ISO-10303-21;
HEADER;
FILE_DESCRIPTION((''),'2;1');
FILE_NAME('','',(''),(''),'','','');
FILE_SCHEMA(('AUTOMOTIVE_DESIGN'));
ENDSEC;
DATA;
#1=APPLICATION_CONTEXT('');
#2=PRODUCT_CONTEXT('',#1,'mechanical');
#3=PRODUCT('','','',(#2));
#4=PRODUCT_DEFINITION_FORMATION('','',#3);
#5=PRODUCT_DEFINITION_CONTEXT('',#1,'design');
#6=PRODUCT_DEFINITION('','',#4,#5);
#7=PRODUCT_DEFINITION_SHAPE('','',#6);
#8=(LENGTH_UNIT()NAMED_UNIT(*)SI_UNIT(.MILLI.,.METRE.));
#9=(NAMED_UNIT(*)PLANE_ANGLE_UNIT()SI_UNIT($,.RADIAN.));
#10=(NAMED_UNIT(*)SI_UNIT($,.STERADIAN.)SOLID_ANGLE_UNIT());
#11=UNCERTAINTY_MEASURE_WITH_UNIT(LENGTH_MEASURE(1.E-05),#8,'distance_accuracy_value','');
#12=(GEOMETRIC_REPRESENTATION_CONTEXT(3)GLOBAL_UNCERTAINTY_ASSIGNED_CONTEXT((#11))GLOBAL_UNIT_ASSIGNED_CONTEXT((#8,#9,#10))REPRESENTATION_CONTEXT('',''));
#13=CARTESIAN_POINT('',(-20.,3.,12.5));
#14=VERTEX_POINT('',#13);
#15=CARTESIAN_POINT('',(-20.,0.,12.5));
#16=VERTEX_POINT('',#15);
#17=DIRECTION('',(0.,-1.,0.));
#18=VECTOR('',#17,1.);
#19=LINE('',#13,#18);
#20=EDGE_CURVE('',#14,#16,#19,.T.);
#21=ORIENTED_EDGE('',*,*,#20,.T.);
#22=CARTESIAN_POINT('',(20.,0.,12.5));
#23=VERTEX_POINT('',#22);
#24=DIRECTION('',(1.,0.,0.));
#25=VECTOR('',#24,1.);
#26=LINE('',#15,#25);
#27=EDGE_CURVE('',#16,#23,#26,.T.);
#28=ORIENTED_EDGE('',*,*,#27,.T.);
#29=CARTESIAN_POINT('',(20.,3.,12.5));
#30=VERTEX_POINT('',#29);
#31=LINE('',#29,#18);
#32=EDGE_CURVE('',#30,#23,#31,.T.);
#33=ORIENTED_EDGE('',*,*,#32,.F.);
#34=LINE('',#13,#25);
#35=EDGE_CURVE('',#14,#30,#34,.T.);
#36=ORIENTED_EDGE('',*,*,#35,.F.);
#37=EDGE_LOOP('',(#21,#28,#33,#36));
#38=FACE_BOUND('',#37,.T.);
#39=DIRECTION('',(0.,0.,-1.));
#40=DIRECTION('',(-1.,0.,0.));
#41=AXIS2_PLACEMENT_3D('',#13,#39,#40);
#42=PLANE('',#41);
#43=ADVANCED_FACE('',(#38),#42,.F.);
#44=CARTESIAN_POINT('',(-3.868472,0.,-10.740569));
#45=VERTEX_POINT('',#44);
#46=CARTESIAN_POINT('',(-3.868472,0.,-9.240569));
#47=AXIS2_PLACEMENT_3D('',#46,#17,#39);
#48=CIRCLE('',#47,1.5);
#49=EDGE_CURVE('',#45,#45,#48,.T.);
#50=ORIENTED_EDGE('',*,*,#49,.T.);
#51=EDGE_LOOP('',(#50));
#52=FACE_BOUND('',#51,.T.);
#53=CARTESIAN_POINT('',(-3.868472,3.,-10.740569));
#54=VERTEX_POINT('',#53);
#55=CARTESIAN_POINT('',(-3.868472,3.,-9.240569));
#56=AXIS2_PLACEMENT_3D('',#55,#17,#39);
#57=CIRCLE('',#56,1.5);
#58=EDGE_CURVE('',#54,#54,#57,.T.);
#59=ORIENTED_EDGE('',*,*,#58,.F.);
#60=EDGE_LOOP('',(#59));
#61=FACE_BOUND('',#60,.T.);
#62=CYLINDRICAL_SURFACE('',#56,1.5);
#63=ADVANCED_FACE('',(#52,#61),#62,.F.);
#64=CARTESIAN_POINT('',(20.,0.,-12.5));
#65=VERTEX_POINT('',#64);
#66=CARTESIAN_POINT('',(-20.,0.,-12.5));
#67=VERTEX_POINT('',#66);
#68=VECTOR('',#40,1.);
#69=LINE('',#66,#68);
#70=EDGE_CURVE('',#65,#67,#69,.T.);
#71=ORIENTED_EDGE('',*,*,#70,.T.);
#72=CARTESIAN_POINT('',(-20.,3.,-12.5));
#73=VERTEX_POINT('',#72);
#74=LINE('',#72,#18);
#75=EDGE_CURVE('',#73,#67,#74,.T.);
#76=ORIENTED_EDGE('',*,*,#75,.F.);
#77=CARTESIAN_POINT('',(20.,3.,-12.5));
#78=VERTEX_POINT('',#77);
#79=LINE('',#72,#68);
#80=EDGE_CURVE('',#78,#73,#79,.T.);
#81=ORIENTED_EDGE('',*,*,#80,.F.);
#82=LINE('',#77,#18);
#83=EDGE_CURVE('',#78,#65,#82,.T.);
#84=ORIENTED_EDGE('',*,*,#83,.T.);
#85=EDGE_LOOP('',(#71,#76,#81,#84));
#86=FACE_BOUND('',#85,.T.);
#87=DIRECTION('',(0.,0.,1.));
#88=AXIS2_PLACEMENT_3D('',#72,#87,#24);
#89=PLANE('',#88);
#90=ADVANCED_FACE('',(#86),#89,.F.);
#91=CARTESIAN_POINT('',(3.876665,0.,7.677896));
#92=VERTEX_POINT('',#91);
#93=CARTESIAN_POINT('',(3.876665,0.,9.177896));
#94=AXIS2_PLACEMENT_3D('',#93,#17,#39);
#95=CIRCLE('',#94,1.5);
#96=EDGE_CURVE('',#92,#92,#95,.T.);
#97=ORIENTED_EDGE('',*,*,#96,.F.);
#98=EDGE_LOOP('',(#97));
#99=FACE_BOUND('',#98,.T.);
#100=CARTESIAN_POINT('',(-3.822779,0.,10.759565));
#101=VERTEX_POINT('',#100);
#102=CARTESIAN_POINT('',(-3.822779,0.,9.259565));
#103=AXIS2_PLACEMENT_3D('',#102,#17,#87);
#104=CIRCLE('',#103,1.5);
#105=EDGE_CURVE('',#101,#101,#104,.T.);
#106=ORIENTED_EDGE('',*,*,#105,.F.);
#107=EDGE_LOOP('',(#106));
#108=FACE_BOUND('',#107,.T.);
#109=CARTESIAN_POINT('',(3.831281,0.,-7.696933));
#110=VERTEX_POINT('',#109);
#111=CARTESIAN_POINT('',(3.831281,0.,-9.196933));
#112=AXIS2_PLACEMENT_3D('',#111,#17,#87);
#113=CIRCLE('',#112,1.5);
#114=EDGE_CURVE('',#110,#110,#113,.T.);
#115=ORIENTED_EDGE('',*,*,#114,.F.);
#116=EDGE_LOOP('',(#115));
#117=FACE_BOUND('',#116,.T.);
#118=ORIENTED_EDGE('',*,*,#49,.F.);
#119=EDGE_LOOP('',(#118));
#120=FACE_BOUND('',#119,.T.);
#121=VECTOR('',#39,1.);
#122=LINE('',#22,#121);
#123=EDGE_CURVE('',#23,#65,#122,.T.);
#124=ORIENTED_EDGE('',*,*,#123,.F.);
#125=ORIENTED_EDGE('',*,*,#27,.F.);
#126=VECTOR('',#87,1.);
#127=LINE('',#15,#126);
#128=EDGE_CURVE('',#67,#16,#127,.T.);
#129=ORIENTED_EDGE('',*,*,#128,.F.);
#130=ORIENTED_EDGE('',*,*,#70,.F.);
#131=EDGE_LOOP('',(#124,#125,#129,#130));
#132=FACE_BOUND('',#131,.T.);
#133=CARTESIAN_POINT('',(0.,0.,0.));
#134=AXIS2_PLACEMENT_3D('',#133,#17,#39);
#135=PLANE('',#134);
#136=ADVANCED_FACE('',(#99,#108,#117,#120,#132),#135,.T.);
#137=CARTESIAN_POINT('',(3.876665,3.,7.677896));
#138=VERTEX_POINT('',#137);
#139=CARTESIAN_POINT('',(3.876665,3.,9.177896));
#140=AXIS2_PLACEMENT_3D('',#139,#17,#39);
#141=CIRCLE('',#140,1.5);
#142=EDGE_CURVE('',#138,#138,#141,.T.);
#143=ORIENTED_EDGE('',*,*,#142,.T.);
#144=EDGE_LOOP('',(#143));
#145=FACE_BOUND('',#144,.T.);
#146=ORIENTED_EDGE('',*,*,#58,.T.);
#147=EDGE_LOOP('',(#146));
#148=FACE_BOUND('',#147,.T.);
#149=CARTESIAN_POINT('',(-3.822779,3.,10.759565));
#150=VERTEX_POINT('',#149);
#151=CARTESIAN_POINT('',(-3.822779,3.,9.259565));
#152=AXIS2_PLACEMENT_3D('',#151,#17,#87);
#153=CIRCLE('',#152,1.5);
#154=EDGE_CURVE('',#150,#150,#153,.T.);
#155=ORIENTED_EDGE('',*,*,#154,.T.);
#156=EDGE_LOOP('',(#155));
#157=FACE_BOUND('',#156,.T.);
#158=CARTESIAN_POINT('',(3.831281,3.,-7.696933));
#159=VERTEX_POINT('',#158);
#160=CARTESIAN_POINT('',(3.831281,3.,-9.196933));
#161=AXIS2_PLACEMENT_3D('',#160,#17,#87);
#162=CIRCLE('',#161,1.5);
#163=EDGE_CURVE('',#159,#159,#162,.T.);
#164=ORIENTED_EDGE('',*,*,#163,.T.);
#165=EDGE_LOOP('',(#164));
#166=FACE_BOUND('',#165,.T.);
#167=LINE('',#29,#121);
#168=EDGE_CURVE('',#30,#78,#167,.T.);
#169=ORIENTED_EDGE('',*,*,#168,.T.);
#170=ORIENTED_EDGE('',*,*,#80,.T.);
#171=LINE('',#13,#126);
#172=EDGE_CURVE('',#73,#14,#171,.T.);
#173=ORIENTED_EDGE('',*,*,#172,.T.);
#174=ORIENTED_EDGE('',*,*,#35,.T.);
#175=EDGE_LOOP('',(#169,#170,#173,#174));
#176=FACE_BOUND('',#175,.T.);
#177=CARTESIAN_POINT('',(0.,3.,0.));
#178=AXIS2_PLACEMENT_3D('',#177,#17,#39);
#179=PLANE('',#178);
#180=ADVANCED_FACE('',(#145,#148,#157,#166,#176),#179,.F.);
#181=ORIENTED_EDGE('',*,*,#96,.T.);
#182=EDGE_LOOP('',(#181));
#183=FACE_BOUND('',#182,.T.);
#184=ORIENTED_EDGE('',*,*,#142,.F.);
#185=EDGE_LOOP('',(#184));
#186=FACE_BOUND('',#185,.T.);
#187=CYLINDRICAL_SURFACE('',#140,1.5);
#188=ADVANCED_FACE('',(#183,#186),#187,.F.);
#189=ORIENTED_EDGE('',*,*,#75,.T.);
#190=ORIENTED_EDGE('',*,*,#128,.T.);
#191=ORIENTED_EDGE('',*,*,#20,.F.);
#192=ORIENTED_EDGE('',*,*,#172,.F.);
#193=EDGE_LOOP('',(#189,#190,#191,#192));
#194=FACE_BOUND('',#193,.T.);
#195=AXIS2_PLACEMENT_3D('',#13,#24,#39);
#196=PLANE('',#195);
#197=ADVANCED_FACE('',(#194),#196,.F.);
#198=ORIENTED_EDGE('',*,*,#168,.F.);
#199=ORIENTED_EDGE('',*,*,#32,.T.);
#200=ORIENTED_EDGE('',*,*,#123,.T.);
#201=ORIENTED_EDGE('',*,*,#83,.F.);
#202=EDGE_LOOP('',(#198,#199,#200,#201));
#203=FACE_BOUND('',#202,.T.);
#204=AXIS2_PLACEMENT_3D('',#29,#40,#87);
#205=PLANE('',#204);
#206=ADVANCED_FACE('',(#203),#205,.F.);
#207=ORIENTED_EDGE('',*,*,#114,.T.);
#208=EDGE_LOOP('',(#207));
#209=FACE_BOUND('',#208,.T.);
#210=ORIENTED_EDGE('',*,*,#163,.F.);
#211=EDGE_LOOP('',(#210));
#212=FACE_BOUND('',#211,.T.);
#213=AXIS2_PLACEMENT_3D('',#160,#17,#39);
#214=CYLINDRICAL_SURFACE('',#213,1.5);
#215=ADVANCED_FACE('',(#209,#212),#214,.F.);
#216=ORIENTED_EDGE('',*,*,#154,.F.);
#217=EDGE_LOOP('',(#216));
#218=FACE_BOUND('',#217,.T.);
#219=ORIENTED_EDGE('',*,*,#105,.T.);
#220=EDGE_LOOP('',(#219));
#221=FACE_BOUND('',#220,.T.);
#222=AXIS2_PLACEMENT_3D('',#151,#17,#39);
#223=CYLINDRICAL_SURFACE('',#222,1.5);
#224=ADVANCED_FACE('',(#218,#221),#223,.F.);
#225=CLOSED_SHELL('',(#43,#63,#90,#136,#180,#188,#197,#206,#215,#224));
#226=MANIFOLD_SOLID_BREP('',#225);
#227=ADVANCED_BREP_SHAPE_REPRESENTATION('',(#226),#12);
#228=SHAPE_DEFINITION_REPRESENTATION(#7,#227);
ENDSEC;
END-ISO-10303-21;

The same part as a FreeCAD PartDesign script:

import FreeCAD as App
import Part
import Sketcher
from FreeCAD import Vector
Q = App.Units.Quantity

doc = App.newDocument("Part")
body = doc.addObject("PartDesign::Body", "Body")

sketch1 = body.newObject("Sketcher::SketchObject", "Sketch")
sketch1.AttachmentSupport = (doc.getObject("XZ_Plane"), [""])
sketch1.MapMode = "FlatFace"
sketch1.addGeometry([
    Part.LineSegment(Vector(-20, -12.5, 0), Vector(-20, 12.5, 0)),
    Part.LineSegment(Vector(-20, 12.5, 0), Vector(20, 12.5, 0)),
    Part.LineSegment(Vector(20, 12.5, 0), Vector(20, -12.5, 0)),
    Part.LineSegment(Vector(20, -12.5, 0), Vector(-20, -12.5, 0)),
], False)
sketch1.addConstraint([
    Sketcher.Constraint("Coincident", 0, 2, 1, 1),
    Sketcher.Constraint("Coincident", 1, 2, 2, 1),
    Sketcher.Constraint("Coincident", 2, 2, 3, 1),
    Sketcher.Constraint("Coincident", 3, 2, 0, 1),
    Sketcher.Constraint("Vertical", 0),
    Sketcher.Constraint("Horizontal", 1),
    Sketcher.Constraint("Vertical", 2),
    Sketcher.Constraint("Horizontal", 3),
    Sketcher.Constraint("Symmetric", 0, 2, 2, 2, -1, 1),
    Sketcher.Constraint("DistanceX", 1, 1, 1, 2, Q("40 mm")),
    Sketcher.Constraint("DistanceY", 0, 1, 0, 2, Q("25 mm")),
])
pad1 = body.newObject("PartDesign::Pad", "Pad")
pad1.Profile = sketch1
pad1.Length = 3
pad1.Reversed = True

sketch2 = body.newObject("Sketcher::SketchObject", "Sketch001")
sketch2.AttachmentSupport = (doc.getObject("XZ_Plane"), [""])
sketch2.MapMode = "FlatFace"
sketch2.addGeometry([
    Part.Circle(Vector(-3.868472, -9.240569, 0), Vector(0, 0, 1), 1.5),
    Part.Circle(Vector(3.831281, -9.196933, 0), Vector(0, 0, 1), 1.5),
    Part.Circle(Vector(3.876665, 9.177896, 0), Vector(0, 0, 1), 1.5),
    Part.Circle(Vector(-3.822779, 9.259565, 0), Vector(0, 0, 1), 1.5),
], False)
sketch2.addConstraint([
    Sketcher.Constraint("Equal", 0, 1),
    Sketcher.Constraint("Equal", 1, 2),
    Sketcher.Constraint("Equal", 2, 3),
    Sketcher.Constraint("Diameter", 0, Q("3 mm")),
    Sketcher.Constraint("DistanceY", 1, 3, 3, 3, Q("18.456498 mm")),
    Sketcher.Constraint("DistanceX", 0, 3, -1, 1, Q("3.868472 mm")),
    Sketcher.Constraint("DistanceY", 0, 3, -1, 1, Q("9.240569 mm")),
    Sketcher.Constraint("DistanceX", -1, 1, 1, 3, Q("3.831281 mm")),
    Sketcher.Constraint("DistanceX", 3, 3, -1, 1, Q("3.822779 mm")),
    Sketcher.Constraint("DistanceY", 1, 3, 2, 3, Q("18.374829 mm")),
    Sketcher.Constraint("DistanceY", 1, 3, -1, 1, Q("9.196933 mm")),
    Sketcher.Constraint("DistanceX", -1, 1, 2, 3, Q("3.876665 mm")),
])
pocket1 = body.newObject("PartDesign::Pocket", "Pocket")
pocket1.Profile = sketch2
pocket1.Type = "ThroughAll"

doc.recompute()
